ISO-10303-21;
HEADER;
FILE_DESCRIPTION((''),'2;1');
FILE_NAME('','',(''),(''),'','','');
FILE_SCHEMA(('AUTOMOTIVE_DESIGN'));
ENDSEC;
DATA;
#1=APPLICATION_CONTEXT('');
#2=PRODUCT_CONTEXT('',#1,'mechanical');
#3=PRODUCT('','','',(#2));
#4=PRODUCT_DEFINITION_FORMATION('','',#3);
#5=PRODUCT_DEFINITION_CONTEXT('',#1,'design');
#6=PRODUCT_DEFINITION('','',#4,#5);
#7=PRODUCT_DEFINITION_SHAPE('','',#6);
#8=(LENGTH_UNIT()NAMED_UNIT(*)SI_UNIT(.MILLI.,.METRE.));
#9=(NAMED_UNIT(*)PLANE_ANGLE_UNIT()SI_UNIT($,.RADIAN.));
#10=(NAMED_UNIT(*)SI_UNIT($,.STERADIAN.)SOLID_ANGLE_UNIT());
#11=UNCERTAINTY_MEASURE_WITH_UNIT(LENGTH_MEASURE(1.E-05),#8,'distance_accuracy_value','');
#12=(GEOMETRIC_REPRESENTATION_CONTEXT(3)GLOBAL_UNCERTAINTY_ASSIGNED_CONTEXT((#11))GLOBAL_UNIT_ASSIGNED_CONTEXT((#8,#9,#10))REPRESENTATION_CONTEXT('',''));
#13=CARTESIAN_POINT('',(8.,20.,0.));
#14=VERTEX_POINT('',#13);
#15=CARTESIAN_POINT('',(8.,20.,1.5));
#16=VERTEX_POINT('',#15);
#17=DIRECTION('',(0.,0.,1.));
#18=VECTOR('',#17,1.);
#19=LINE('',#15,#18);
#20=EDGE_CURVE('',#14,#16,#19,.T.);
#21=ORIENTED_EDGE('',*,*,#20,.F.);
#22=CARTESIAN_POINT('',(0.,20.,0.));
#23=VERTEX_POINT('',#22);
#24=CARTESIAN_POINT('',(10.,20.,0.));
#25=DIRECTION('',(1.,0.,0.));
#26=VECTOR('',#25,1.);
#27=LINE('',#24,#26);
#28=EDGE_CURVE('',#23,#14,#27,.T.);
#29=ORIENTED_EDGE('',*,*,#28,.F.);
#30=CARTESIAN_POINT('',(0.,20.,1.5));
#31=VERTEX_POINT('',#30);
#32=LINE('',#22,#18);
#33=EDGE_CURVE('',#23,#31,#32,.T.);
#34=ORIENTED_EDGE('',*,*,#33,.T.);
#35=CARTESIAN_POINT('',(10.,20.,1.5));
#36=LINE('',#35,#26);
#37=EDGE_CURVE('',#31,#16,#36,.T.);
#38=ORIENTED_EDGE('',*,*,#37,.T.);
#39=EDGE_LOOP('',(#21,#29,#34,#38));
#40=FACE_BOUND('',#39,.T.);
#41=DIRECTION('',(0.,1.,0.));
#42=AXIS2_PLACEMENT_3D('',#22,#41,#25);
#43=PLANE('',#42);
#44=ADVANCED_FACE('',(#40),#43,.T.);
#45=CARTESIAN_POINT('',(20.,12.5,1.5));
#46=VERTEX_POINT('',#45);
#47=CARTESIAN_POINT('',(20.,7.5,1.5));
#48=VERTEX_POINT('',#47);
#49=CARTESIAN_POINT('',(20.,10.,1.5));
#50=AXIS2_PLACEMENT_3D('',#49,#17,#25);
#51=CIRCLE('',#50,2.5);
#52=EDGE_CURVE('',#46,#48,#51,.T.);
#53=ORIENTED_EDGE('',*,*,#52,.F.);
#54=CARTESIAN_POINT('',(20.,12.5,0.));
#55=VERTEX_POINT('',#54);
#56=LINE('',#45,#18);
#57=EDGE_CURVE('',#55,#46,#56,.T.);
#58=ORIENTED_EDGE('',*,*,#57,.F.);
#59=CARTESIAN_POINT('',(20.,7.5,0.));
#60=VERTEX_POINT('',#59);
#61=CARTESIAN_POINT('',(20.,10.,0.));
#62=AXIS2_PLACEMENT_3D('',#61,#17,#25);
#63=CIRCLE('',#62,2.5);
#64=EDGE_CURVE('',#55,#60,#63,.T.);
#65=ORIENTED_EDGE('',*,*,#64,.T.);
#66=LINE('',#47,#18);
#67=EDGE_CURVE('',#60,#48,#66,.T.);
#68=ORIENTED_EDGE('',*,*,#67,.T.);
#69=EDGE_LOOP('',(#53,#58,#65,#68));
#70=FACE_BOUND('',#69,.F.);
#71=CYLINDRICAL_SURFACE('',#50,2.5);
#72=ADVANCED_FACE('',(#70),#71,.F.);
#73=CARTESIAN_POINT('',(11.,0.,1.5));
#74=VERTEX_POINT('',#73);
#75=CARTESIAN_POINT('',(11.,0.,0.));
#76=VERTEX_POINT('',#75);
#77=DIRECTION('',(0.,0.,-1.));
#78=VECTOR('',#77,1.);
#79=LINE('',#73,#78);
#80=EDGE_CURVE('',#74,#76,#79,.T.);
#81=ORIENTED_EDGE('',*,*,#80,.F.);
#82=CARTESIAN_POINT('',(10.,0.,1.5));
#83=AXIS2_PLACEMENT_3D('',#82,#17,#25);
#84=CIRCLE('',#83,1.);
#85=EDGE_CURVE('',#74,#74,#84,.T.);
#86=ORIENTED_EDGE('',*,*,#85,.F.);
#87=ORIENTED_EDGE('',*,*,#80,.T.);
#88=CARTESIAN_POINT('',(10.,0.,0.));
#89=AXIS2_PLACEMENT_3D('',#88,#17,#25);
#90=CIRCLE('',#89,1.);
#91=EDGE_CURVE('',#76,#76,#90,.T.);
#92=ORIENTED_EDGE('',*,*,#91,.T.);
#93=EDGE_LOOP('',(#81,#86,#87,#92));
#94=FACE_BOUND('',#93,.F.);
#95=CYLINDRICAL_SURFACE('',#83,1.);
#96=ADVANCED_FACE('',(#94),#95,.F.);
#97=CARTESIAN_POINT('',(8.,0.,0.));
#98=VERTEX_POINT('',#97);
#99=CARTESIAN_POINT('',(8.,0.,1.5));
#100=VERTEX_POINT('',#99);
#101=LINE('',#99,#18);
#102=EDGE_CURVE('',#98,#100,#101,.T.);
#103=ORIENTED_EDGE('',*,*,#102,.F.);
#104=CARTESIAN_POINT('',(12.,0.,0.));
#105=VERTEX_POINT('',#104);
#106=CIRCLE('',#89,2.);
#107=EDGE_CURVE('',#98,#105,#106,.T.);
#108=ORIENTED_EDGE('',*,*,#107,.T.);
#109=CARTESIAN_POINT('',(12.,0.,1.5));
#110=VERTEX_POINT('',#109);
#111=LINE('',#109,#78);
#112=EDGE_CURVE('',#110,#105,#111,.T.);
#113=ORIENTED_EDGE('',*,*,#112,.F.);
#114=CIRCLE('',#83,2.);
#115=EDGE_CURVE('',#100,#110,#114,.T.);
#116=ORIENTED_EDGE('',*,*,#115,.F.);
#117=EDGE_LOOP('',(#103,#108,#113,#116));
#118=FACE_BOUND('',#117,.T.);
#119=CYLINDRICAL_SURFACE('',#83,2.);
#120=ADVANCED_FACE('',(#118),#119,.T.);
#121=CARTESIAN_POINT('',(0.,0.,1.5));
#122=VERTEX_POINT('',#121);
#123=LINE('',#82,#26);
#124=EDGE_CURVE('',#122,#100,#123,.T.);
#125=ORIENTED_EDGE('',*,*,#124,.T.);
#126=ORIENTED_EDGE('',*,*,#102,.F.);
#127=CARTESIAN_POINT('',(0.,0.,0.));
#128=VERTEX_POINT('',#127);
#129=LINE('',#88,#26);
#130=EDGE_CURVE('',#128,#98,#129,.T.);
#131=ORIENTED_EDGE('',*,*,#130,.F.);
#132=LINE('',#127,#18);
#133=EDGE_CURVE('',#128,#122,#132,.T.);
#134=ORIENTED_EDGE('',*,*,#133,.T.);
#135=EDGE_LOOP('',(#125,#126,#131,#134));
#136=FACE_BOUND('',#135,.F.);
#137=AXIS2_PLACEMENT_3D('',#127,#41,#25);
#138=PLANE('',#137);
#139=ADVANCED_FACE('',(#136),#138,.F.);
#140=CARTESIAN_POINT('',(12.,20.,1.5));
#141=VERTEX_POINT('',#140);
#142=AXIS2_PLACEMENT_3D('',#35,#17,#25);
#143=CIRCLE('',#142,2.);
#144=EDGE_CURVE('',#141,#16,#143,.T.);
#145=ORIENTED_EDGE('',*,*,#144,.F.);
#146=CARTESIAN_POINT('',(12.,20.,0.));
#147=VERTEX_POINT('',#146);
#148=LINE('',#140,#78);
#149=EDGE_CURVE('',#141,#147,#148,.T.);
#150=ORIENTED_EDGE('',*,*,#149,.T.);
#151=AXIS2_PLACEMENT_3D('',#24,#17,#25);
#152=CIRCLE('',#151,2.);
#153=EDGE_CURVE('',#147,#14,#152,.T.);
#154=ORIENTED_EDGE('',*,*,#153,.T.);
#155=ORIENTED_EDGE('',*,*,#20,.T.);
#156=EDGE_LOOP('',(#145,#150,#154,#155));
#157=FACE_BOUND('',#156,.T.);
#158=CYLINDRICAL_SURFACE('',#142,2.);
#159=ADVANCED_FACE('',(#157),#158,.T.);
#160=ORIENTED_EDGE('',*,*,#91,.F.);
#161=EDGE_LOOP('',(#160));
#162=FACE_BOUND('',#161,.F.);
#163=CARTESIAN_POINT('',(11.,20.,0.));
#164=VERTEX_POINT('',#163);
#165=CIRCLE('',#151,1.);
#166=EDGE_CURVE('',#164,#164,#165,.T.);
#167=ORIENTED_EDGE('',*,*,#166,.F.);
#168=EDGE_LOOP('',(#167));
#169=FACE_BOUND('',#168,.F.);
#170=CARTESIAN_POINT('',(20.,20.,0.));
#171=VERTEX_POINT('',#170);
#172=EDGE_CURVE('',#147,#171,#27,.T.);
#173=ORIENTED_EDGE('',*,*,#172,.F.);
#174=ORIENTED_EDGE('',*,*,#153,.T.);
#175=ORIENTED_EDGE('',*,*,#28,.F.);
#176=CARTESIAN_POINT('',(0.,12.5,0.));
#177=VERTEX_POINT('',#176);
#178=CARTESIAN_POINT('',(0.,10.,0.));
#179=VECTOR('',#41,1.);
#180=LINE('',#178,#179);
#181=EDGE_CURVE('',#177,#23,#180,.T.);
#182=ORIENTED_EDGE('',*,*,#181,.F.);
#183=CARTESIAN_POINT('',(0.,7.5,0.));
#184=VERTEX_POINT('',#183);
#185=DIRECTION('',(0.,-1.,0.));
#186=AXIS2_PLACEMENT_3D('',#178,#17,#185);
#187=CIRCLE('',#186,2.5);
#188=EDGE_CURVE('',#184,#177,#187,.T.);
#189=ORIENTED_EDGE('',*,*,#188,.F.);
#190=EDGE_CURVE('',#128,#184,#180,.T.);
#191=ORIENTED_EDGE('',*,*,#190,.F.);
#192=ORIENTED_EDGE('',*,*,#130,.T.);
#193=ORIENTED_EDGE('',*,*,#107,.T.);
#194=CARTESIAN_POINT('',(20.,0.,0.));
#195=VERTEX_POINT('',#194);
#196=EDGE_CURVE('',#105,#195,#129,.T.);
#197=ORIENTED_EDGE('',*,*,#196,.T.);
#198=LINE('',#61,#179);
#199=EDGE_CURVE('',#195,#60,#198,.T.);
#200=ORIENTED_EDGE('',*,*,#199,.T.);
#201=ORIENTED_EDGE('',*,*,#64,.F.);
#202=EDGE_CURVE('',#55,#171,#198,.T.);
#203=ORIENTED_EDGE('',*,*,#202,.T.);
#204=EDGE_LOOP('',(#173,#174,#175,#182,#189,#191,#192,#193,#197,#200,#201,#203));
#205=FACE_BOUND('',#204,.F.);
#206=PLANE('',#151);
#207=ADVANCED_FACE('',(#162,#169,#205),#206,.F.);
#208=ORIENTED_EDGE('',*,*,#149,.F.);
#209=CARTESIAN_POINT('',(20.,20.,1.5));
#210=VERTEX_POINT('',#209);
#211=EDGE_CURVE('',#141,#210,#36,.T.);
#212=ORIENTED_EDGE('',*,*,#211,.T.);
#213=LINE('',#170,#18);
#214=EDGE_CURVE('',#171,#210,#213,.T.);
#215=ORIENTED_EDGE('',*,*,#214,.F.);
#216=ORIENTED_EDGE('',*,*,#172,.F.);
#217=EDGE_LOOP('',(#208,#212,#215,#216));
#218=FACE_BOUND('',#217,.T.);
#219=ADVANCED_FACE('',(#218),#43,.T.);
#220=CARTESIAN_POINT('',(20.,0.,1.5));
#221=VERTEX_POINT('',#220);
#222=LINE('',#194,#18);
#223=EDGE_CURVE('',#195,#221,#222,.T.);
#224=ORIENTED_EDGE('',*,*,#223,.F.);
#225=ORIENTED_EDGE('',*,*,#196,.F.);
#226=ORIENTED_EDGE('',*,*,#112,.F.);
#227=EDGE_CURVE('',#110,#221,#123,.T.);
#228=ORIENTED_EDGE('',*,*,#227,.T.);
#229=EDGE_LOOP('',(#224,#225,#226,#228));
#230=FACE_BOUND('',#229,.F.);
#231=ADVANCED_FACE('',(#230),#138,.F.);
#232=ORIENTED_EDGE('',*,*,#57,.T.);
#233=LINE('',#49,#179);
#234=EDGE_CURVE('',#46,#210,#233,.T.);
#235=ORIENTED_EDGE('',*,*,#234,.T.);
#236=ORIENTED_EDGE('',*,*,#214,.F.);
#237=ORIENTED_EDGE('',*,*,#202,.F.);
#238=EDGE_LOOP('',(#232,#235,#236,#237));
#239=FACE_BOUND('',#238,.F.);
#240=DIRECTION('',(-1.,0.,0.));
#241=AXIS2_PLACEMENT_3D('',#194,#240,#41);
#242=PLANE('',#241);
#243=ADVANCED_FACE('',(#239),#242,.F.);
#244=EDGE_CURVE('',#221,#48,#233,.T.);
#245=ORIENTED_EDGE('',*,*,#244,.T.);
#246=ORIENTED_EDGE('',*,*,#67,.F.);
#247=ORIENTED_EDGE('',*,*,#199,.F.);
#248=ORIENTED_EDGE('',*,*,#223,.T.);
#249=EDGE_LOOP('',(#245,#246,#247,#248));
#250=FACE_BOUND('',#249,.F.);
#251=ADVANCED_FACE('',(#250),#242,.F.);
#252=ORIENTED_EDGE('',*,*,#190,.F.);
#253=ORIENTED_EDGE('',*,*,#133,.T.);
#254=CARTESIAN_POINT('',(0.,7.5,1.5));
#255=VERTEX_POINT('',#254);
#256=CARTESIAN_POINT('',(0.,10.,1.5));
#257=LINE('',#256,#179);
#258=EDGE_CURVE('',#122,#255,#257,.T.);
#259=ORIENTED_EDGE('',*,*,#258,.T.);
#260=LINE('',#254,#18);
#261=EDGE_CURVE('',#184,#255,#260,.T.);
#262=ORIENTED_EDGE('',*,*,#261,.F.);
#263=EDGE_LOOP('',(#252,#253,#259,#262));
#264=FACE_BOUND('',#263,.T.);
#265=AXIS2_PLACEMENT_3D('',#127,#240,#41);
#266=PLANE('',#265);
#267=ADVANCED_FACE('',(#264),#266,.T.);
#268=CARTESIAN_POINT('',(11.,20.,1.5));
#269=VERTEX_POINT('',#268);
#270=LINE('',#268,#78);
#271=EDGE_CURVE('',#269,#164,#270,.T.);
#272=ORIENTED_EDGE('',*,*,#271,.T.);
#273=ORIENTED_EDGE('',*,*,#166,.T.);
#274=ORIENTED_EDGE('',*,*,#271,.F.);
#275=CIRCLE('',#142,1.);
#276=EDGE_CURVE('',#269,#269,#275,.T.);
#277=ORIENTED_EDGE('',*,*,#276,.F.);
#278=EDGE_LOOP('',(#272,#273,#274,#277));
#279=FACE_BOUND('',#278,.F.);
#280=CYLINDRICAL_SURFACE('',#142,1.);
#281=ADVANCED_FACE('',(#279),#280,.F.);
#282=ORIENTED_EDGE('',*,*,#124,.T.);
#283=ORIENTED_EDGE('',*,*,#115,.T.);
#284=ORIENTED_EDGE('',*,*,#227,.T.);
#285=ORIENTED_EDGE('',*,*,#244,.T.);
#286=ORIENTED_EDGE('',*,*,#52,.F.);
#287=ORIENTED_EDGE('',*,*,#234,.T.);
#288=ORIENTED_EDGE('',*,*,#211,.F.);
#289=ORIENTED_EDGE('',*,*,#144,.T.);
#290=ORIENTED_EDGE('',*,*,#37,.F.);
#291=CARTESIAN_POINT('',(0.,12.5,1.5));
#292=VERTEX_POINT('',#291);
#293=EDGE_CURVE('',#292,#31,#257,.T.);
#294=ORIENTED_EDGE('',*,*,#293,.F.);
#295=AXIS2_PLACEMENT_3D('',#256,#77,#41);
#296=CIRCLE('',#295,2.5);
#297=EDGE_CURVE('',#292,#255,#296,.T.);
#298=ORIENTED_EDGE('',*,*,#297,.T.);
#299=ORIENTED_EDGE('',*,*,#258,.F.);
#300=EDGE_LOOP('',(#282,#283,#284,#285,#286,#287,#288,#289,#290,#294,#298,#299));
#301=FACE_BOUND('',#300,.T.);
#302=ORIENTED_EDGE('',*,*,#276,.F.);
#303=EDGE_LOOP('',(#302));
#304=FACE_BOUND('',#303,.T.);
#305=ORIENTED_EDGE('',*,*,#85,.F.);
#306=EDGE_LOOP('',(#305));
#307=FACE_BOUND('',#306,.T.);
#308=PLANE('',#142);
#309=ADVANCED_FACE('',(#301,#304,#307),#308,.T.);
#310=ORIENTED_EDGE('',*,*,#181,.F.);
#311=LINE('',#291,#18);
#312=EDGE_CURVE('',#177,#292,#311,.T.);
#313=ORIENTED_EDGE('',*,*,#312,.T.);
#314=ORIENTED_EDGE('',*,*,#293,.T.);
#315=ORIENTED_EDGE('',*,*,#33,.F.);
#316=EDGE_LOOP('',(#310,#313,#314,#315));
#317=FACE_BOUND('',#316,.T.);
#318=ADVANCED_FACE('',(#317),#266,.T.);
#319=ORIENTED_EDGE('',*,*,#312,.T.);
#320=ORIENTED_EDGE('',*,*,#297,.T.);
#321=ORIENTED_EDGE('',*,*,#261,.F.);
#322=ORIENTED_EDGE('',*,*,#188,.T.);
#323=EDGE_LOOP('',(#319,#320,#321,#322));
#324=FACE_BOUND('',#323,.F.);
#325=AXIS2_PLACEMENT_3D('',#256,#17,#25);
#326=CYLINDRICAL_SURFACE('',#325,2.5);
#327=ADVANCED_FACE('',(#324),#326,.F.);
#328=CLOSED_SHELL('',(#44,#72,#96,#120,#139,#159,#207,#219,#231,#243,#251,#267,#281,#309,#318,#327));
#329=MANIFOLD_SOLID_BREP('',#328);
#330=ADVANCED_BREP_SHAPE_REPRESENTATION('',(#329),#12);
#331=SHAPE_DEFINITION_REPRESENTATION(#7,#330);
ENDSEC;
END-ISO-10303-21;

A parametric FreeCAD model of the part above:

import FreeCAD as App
import Part
import Sketcher
from FreeCAD import Vector
Q = App.Units.Quantity

doc = App.newDocument("Part")
body = doc.addObject("PartDesign::Body", "Body")

# Sketch on XY plane
sketch1 = body.newObject("Sketcher::SketchObject", "Sketch")
sketch1.AttachmentSupport = (doc.getObject("XY_Plane"), [""])
sketch1.MapMode = "FlatFace"
sketch1.addGeometry([
    Part.LineSegment(Vector(0, 20, 0), Vector(0, 0, 0)),
    Part.LineSegment(Vector(0, 0, 0), Vector(20, 0, 0)),
    Part.LineSegment(Vector(20, 0, 0), Vector(20, 20, 0)),
    Part.LineSegment(Vector(20, 20, 0), Vector(0, 20, 0)),
], False)
sketch1.addConstraint([
    Sketcher.Constraint("Coincident", 0, 2, 1, 1),
    Sketcher.Constraint("Coincident", 1, 2, 2, 1),
    Sketcher.Constraint("Coincident", 2, 2, 3, 1),
    Sketcher.Constraint("Coincident", 3, 2, 0, 1),
    Sketcher.Constraint("Vertical", 0),
    Sketcher.Constraint("Horizontal", 1),
    Sketcher.Constraint("Vertical", 2),
    Sketcher.Constraint("Horizontal", 3),
    Sketcher.Constraint("Coincident", 0, 2, -1, 1),
    Sketcher.Constraint("Equal", 3, 0),
    Sketcher.Constraint("DistanceX", 1, 1, 1, 2, Q("20 mm")),
])
pad1 = body.newObject("PartDesign::Pad", "Pad")
pad1.Profile = sketch1
pad1.Length = 1.5

# Sketch on XY plane
sketch2 = body.newObject("Sketcher::SketchObject", "Sketch001")
sketch2.AttachmentSupport = (doc.getObject("XY_Plane"), [""])
sketch2.MapMode = "FlatFace"
sketch2.AttachmentOffset = App.Placement(Vector(0, 0, 1.5), App.Rotation())
sketch2.addGeometry([
    Part.Circle(Vector(10, 20, 0), Vector(0, 0, 1), 2),
    Part.Circle(Vector(10, 0, 0), Vector(0, 0, 1), 2),
], False)
sketch2.addConstraint([
    Sketcher.Constraint("Equal", 0, 1),
    Sketcher.Constraint("PointOnObject", 1, 3, -1),
    Sketcher.Constraint("Vertical", 0, 3, 1, 3),
    Sketcher.Constraint("Diameter", 0, Q("4 mm")),
    Sketcher.Constraint("DistanceX", -1, 1, 0, 3, Q("10 mm")),
    Sketcher.Constraint("DistanceY", -1, 1, 0, 3, Q("20 mm")),
])
pad2 = body.newObject("PartDesign::Pad", "Pad001")
pad2.Profile = sketch2
pad2.Length = 1.5
pad2.Reversed = True

# Sketch on XY plane
sketch3 = body.newObject("Sketcher::SketchObject", "Sketch002")
sketch3.AttachmentSupport = (doc.getObject("XY_Plane"), [""])
sketch3.MapMode = "FlatFace"
sketch3.AttachmentOffset = App.Placement(Vector(0, 0, 1.5), App.Rotation())
sketch3.addGeometry([
    Part.Circle(Vector(10, 20, 0), Vector(0, 0, 1), 1),
    Part.Circle(Vector(10, 0, 0), Vector(0, 0, 1), 1),
], False)
sketch3.addConstraint([
    Sketcher.Constraint("Equal", 0, 1),
    Sketcher.Constraint("PointOnObject", 1, 3, -1),
    Sketcher.Constraint("Vertical", 0, 3, 1, 3),
    Sketcher.Constraint("Diameter", 0, Q("2 mm")),
    Sketcher.Constraint("DistanceX", -1, 1, 0, 3, Q("10 mm")),
    Sketcher.Constraint("DistanceY", -1, 1, 0, 3, Q("20 mm")),
])
pocket1 = body.newObject("PartDesign::Pocket", "Pocket")
pocket1.Profile = sketch3
pocket1.Length = 5

# Sketch on XY plane
sketch4 = body.newObject("Sketcher::SketchObject", "Sketch003")
sketch4.AttachmentSupport = (doc.getObject("XY_Plane"), [""])
sketch4.MapMode = "FlatFace"
sketch4.AttachmentOffset = App.Placement(Vector(0, 0, 1.5), App.Rotation())
sketch4.addGeometry([
    Part.Circle(Vector(0, 10, 0), Vector(0, 0, 1), 2.5),
    Part.Circle(Vector(20, 10, 0), Vector(0, 0, 1), 2.5),
], False)
sketch4.addConstraint([
    Sketcher.Constraint("Equal", 0, 1),
    Sketcher.Constraint("PointOnObject", 0, 3, -2),
    Sketcher.Constraint("Horizontal", 0, 3, 1, 3),
    Sketcher.Constraint("Diameter", 0, Q("5 mm")),
    Sketcher.Constraint("DistanceY", -1, 1, 0, 3, Q("10 mm")),
    Sketcher.Constraint("DistanceX", -1, 1, 1, 3, Q("20 mm")),
])
pocket2 = body.newObject("PartDesign::Pocket", "Pocket001")
pocket2.Profile = sketch4
pocket2.Length = 5

doc.recompute()
